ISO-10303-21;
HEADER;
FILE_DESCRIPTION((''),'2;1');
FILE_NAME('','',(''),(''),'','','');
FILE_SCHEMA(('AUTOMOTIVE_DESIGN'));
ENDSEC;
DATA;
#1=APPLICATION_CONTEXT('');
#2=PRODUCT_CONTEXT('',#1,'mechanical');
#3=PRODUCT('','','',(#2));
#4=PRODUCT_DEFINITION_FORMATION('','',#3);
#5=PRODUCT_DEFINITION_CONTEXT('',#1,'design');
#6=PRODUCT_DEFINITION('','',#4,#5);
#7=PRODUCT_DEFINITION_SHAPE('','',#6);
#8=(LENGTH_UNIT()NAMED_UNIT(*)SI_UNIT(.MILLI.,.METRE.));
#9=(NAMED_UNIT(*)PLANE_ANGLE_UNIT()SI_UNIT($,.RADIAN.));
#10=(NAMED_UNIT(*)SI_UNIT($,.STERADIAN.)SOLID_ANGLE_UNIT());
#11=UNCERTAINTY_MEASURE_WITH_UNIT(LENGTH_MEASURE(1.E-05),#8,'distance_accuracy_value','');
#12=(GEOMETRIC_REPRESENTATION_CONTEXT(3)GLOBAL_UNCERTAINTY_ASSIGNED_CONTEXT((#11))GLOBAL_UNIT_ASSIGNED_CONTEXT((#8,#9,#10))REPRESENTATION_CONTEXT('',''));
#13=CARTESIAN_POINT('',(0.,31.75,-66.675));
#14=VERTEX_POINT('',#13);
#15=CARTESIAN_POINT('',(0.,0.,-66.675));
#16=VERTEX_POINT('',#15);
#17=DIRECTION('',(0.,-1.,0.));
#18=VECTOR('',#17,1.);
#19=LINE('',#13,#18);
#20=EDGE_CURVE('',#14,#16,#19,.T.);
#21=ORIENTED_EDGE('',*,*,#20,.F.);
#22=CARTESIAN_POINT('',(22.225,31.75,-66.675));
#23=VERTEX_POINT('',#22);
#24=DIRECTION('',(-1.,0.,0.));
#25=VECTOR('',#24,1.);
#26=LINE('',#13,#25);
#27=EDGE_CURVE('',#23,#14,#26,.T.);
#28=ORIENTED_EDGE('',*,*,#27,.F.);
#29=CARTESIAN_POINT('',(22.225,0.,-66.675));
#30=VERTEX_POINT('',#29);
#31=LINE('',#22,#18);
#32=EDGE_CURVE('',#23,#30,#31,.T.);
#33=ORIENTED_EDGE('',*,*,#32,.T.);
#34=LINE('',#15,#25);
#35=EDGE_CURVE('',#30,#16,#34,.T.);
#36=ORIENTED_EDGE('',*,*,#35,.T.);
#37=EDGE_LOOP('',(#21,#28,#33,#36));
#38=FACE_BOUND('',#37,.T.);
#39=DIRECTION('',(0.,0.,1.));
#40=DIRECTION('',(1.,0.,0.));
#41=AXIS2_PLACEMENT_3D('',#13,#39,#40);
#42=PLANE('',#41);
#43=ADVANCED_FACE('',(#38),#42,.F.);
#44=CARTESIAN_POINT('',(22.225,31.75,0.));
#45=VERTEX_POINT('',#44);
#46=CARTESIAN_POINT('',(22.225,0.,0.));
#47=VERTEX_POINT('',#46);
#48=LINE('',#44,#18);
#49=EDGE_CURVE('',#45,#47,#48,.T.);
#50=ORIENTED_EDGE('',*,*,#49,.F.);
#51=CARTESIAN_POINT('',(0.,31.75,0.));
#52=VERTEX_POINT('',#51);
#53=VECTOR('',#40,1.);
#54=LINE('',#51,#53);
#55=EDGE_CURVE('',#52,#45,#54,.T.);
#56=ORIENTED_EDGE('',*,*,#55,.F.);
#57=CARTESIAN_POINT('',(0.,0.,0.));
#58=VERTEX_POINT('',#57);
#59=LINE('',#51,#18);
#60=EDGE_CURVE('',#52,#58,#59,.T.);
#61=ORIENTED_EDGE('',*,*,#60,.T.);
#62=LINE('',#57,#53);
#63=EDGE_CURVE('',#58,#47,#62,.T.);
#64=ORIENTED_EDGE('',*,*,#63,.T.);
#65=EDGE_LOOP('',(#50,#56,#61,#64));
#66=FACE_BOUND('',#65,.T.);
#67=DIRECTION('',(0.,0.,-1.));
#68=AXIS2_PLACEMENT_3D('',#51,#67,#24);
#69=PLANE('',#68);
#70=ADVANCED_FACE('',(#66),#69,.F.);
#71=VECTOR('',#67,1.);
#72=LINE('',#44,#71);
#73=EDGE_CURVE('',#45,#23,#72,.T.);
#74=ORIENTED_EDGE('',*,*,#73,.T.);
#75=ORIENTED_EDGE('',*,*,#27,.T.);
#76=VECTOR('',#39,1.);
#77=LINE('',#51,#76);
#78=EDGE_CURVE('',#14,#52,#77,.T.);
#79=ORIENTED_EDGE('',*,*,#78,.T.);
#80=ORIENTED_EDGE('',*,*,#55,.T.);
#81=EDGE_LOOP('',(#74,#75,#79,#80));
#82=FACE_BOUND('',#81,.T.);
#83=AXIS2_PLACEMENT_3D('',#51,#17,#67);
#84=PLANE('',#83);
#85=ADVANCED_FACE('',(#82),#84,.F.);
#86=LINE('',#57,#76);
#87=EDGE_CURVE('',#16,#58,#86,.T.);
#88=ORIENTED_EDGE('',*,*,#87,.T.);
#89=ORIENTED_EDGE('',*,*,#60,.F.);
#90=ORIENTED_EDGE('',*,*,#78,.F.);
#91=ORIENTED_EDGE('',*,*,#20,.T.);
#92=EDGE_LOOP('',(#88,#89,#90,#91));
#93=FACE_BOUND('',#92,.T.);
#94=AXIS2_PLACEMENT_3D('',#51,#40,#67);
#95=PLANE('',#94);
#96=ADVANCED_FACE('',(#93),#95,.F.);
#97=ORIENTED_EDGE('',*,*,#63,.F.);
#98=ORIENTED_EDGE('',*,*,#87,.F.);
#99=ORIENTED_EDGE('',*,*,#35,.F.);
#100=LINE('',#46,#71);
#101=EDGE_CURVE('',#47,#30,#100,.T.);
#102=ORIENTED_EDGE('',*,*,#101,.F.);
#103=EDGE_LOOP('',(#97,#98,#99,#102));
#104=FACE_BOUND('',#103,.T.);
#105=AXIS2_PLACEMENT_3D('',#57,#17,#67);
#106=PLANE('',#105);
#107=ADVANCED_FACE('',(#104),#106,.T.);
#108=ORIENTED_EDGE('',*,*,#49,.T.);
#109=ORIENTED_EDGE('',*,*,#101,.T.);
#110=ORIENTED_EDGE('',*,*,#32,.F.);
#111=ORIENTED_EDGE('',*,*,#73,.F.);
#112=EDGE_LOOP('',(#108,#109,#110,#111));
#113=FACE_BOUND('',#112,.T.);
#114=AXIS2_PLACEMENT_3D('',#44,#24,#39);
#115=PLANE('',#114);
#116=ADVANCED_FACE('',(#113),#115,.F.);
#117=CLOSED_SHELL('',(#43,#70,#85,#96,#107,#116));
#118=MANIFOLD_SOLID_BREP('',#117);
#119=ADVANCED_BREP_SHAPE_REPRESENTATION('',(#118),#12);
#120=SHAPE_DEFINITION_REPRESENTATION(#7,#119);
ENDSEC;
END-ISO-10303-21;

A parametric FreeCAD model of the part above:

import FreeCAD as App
import Part
import Sketcher

V = App.Vector
Q = App.Units.Quantity


def add_polygon(sketch, points):
    """Adds a closed chain of lines whose ends are joined by coincident constraints."""
    first, n = sketch.GeometryCount, len(points)
    for a, b in zip(points, points[1:] + points[:1]):
        sketch.addGeometry(Part.LineSegment(App.Vector(*a, 0), App.Vector(*b, 0)), False)
    for i in range(n):
        sketch.addConstraint(Sketcher.Constraint("Coincident", first + i, 2, first + (i + 1) % n, 1))

doc = App.newDocument("Part")
body = doc.addObject("PartDesign::Body", "Body")

# Sketch on XZ plane
sketch1 = doc.addObject("Sketcher::SketchObject", "Sketch")
body.addObject(sketch1)
sketch1.AttachmentSupport = (doc.XZ_Plane, [""])
sketch1.MapMode = "FlatFace"
add_polygon(sketch1, [(0, -67), (0, 0), (22, 0), (22, -67)])  # lines 0-3
sketch1.addConstraint(Sketcher.Constraint("Vertical", 0))
sketch1.addConstraint(Sketcher.Constraint("Horizontal", 1))
sketch1.addConstraint(Sketcher.Constraint("Vertical", 2))
sketch1.addConstraint(Sketcher.Constraint("Horizontal", 3))
sketch1.addConstraint(Sketcher.Constraint("Coincident", 0, 2, -1, 1))
sketch1.addConstraint(Sketcher.Constraint("DistanceX", 1, 1, 1, 2, Q("0.875 in")))
sketch1.addConstraint(Sketcher.Constraint("DistanceY", 0, 1, 0, 2, Q("2.625 in")))
pad1 = doc.addObject("PartDesign::Pad", "Pad")
body.addObject(pad1)
pad1.Profile = sketch1
pad1.Length = Q("1.25 in")
pad1.Reversed = True

doc.recompute()
